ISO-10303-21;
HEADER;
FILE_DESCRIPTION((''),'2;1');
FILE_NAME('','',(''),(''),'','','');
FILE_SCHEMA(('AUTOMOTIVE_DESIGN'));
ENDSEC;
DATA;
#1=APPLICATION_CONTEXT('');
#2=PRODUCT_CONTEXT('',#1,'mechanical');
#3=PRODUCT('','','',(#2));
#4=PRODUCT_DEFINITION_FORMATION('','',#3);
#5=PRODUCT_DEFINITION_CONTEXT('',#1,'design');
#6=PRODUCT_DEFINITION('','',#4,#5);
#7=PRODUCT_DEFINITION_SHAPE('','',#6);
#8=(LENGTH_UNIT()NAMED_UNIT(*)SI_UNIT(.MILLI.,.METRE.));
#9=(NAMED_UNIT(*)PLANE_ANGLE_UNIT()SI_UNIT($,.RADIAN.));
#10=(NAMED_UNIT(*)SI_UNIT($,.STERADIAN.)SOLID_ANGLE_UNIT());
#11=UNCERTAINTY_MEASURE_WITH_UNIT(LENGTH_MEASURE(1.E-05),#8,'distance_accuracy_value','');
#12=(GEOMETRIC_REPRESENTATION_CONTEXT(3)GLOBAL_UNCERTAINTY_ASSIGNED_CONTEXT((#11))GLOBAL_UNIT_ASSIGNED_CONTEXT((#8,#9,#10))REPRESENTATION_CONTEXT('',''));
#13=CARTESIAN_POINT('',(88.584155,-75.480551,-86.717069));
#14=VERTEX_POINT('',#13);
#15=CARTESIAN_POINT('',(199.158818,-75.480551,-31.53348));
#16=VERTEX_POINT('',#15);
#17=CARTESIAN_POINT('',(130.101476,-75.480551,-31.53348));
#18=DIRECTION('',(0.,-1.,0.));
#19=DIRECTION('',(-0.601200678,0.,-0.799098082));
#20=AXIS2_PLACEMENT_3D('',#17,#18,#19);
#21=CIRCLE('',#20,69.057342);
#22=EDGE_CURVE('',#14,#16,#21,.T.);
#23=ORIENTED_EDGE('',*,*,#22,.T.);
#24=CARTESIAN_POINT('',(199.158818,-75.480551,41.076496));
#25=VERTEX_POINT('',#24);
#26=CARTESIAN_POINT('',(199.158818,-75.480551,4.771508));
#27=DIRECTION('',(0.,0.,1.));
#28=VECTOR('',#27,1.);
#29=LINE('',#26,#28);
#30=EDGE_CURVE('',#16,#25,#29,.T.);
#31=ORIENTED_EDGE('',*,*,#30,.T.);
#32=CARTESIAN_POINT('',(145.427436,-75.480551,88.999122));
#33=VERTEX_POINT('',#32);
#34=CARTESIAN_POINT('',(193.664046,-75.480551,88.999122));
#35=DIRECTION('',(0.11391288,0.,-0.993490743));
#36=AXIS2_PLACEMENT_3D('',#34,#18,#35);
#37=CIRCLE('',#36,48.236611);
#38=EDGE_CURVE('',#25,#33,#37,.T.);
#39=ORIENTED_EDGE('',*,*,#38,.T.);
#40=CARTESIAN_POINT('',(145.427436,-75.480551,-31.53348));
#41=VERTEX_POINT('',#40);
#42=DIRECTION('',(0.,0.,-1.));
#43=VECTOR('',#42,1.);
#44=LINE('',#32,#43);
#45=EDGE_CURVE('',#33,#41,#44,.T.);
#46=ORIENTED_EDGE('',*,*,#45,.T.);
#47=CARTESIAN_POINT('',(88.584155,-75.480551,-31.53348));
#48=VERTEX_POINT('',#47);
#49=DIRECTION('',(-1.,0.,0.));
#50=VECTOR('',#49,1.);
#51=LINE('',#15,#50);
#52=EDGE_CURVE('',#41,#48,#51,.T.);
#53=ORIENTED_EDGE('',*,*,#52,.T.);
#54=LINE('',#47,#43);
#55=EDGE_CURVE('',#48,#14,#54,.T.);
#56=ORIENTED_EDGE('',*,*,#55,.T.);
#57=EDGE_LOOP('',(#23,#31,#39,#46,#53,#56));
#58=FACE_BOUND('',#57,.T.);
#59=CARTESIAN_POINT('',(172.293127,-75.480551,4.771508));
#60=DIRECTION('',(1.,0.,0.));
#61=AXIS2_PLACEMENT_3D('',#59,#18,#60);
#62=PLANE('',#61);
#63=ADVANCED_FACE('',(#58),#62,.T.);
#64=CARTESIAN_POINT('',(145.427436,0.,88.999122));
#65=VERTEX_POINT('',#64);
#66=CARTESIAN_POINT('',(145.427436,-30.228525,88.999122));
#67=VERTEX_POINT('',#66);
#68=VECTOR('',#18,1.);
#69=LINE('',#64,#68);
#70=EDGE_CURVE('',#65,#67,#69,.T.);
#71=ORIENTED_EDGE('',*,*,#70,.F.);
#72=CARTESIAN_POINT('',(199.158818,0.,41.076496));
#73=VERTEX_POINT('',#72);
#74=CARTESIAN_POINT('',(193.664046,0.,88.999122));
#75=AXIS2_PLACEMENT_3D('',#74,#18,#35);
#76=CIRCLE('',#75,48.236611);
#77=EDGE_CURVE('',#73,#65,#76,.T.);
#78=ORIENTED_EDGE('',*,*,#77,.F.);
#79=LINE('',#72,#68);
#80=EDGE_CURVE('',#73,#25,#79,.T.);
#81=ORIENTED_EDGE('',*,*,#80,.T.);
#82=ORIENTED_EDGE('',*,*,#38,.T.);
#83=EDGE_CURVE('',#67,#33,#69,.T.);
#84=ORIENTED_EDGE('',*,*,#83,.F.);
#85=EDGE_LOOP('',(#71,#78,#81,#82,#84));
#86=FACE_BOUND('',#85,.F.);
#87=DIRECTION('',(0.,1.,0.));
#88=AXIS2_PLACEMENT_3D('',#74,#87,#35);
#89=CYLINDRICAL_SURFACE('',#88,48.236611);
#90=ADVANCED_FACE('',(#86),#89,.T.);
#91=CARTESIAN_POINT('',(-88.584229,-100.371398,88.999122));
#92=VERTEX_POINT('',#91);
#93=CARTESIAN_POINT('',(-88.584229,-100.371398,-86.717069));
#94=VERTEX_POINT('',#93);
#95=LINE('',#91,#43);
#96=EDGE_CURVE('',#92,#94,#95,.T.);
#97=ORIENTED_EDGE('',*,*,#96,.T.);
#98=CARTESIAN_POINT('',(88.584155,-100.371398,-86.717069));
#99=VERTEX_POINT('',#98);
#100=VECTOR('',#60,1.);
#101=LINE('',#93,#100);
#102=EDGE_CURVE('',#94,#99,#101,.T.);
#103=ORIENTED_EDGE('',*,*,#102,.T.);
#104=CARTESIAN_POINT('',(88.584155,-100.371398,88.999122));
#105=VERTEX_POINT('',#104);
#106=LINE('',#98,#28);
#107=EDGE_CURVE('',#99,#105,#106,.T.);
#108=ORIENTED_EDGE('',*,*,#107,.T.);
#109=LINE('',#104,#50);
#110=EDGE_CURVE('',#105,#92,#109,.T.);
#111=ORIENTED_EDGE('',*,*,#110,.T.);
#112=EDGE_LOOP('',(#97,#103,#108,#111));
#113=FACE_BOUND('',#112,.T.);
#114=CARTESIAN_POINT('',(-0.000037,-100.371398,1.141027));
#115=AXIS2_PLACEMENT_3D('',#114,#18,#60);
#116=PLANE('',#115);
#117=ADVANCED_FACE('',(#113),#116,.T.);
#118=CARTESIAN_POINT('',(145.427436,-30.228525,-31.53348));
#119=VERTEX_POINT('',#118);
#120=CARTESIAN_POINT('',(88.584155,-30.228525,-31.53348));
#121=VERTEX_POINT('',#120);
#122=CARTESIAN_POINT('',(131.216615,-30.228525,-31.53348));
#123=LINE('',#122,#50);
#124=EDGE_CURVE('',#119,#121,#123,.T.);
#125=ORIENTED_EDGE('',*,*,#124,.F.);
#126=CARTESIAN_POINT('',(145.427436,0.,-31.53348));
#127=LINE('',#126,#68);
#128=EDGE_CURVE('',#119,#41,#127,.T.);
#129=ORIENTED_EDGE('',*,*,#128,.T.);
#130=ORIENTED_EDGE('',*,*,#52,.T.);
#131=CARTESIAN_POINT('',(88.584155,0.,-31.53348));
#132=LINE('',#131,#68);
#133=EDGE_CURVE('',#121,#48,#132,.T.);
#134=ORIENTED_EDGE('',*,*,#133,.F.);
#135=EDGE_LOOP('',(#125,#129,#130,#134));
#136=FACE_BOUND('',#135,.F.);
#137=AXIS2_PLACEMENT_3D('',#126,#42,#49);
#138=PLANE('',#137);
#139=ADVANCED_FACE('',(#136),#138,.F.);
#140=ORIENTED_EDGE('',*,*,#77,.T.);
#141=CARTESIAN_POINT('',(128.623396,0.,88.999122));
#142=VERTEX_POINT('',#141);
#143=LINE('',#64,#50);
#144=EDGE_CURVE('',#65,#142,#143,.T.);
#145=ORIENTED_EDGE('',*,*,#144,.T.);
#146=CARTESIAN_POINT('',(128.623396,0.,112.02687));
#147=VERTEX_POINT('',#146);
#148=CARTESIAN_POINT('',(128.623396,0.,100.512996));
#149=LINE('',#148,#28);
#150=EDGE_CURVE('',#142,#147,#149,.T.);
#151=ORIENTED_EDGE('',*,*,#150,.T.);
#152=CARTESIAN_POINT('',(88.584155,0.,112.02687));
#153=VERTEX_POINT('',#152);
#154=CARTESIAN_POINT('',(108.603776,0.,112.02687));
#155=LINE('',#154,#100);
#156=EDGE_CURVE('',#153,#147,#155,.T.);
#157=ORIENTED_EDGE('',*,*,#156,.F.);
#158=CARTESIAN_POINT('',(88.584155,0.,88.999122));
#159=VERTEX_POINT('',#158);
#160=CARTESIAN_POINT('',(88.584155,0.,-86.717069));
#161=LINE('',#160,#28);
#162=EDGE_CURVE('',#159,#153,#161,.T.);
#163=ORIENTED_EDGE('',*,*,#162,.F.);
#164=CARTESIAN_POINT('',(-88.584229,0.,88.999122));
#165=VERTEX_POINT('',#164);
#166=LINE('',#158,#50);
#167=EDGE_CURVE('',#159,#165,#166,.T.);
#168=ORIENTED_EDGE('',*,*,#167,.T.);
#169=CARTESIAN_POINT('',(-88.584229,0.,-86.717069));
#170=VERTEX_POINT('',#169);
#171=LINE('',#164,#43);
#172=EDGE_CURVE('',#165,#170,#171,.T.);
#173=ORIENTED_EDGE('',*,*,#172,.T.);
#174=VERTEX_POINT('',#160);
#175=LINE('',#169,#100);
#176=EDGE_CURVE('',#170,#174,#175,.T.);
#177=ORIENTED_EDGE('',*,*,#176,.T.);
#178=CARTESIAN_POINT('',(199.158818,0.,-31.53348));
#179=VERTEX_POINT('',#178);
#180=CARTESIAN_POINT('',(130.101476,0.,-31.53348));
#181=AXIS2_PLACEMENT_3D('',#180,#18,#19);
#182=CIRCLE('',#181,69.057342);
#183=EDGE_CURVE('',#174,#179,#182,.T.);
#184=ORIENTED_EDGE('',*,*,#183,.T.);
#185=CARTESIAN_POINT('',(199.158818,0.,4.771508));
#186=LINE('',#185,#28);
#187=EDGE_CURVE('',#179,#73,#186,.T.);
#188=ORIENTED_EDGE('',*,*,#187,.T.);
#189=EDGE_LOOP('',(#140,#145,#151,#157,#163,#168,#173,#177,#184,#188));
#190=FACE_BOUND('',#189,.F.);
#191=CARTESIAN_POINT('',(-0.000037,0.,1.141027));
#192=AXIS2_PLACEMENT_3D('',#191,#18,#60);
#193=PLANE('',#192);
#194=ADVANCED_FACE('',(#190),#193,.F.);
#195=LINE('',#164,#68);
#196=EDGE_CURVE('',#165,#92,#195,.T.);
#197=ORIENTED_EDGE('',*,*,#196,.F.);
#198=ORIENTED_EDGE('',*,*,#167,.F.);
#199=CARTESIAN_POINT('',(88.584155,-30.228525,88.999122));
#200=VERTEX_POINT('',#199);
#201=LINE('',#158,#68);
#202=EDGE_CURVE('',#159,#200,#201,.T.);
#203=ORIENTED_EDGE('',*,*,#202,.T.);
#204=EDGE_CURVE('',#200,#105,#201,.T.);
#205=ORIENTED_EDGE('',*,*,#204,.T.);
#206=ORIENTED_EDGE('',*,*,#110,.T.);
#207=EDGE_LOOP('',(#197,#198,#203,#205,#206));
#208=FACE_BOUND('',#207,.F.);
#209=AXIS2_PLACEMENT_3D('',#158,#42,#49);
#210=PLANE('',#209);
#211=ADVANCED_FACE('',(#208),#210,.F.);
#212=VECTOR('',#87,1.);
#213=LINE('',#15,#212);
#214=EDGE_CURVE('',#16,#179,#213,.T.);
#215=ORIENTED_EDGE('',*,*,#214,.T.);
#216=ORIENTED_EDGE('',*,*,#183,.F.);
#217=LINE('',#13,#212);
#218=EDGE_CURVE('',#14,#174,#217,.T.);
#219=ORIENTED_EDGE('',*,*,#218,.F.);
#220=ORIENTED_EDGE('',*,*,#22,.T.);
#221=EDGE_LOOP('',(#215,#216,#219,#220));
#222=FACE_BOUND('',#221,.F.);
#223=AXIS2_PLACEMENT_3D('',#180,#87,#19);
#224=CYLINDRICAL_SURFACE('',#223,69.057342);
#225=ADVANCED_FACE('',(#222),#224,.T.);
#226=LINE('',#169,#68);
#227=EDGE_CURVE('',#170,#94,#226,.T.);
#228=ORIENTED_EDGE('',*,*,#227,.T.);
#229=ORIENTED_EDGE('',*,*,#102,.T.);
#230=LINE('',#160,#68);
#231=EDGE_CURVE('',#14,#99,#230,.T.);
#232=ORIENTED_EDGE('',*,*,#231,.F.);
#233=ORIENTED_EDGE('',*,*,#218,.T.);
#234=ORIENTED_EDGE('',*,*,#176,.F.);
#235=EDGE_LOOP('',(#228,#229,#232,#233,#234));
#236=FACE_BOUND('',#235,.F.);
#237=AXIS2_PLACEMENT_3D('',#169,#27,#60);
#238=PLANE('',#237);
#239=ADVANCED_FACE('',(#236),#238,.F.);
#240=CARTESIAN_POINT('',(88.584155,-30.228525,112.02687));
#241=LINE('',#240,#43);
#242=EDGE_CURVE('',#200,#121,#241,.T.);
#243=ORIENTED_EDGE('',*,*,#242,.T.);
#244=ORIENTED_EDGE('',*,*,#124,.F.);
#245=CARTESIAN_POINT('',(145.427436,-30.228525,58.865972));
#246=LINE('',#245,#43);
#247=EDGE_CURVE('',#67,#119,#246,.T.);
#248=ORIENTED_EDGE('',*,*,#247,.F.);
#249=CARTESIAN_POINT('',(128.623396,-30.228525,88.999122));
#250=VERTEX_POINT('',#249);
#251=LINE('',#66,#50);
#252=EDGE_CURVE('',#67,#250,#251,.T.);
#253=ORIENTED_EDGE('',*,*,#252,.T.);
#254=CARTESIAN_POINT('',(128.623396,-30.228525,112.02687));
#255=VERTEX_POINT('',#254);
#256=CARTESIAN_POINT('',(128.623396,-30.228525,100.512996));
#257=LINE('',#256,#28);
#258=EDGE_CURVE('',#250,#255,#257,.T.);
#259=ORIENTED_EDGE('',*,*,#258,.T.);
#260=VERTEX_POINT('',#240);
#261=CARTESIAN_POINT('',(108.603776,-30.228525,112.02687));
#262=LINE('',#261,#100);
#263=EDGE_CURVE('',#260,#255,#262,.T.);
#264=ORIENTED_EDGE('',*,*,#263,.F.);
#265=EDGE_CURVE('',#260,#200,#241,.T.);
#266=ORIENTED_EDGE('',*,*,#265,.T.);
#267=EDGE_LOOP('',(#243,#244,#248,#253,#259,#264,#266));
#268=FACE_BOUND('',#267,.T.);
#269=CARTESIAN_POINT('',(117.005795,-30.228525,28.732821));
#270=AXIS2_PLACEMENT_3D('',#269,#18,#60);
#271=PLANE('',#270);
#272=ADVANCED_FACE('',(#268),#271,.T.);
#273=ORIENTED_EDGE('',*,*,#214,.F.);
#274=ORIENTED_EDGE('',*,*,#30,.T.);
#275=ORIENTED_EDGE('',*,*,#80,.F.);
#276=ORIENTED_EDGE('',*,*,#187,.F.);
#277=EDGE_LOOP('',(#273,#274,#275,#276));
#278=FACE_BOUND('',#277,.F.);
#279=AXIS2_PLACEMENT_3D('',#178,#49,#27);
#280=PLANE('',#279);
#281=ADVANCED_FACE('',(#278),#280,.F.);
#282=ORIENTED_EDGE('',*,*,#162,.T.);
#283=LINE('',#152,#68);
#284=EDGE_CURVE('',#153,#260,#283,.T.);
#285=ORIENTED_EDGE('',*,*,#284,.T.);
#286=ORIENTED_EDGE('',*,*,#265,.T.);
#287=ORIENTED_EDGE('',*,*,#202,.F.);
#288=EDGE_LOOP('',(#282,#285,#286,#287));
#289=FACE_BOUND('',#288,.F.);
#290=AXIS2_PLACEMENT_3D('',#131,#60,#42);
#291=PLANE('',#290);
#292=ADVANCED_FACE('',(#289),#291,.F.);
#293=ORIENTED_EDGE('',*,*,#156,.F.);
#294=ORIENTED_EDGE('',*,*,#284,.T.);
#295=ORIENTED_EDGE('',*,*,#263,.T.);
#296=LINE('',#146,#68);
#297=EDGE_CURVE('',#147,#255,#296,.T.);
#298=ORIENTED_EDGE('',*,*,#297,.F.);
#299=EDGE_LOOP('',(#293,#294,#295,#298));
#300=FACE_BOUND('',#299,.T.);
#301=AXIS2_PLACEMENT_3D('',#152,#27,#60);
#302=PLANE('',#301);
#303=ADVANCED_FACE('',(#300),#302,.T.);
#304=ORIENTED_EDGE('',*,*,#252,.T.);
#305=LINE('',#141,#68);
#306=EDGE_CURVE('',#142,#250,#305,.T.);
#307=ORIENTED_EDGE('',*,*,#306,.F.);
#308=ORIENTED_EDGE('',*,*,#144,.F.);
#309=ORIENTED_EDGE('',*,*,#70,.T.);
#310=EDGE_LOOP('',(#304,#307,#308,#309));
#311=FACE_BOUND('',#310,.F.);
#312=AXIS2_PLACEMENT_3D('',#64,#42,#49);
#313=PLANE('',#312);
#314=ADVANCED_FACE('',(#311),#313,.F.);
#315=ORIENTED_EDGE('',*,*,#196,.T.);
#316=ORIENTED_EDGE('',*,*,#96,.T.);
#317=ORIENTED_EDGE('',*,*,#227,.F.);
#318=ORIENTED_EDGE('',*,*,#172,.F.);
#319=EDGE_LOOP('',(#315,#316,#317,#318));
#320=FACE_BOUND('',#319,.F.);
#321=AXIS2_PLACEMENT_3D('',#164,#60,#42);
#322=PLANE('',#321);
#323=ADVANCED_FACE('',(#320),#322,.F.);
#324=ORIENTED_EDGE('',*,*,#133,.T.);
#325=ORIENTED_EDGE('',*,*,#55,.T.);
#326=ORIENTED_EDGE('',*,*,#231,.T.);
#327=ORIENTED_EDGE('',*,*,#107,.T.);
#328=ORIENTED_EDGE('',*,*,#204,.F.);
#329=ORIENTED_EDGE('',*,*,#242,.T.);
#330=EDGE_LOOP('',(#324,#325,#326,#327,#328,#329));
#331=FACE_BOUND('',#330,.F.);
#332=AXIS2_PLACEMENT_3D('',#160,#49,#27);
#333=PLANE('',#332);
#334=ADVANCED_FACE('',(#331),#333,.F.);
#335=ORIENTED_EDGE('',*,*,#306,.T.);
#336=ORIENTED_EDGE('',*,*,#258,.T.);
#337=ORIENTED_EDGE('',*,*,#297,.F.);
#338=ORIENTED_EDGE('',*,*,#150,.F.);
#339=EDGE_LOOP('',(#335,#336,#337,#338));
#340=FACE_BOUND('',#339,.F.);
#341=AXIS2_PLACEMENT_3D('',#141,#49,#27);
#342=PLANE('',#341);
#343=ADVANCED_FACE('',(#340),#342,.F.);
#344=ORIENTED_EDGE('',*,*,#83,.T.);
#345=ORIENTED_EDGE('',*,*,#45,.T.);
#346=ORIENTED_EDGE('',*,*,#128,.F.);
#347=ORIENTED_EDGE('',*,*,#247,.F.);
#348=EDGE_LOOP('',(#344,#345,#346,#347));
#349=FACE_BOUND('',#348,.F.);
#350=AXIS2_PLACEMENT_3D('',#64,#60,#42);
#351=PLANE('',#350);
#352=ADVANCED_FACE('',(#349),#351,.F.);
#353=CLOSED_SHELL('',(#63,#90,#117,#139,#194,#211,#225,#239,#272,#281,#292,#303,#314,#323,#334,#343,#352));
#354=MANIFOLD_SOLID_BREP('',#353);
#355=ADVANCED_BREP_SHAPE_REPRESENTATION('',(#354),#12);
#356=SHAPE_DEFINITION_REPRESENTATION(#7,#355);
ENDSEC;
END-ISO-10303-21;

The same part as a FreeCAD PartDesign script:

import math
import FreeCAD as App
import Part
import Sketcher
from FreeCAD import Vector


def add_polygon(sketch, points):
    """Adds a closed chain of lines whose ends are joined by coincident constraints."""
    first, n = sketch.GeometryCount, len(points)
    for a, b in zip(points, points[1:] + points[:1]):
        sketch.addGeometry(Part.LineSegment(App.Vector(*a, 0), App.Vector(*b, 0)), False)
    for i in range(n):
        sketch.addConstraint(Sketcher.Constraint("Coincident", first + i, 2, first + (i + 1) % n, 1))

doc = App.newDocument("Part")
params = doc.addObject("Spreadsheet::Sheet", "Params")
for row, (alias, value) in enumerate([
    ("pad1_length", "75.480551 mm"),
    ("pad2_length", "30.228525 mm"),
    ("pad3_length", "100.371398 mm"),
], start=1):
    params.set(f"A{row}", alias)
    params.set(f"B{row}", "=" + value)
    params.setAlias(f"B{row}", alias)

body = doc.addObject("PartDesign::Body", "Body")

# Sketch on XZ plane
sketch1 = body.newObject("Sketcher::SketchObject", "Sketch")
sketch1.AttachmentSupport = (doc.getObject("XZ_Plane"), [""])
sketch1.MapMode = "FlatFace"
sketch1.addGeometry(Part.LineSegment(Vector(199, -32, 0), Vector(199, 41, 0)), False)
sketch1.addGeometry(Part.ArcOfCircle(Part.Circle(Vector(194, 89, 0), Vector(0, 0, 1), 48), math.radians(-83), math.radians(180)), False)
sketch1.addGeometry(Part.LineSegment(Vector(145, 89, 0), Vector(145, -32, 0)), False)
sketch1.addGeometry(Part.LineSegment(Vector(145, -32, 0), Vector(89, -32, 0)), False)
sketch1.addGeometry(Part.LineSegment(Vector(89, -32, 0), Vector(89, -87, 0)), False)
sketch1.addGeometry(Part.ArcOfCircle(Part.Circle(Vector(130, -32, 0), Vector(0, 0, 1), 69), math.radians(-127), math.radians(0)), False)
sketch1.addConstraint(Sketcher.Constraint("Coincident", 0, 2, 1, 1))
sketch1.addConstraint(Sketcher.Constraint("Tangent", 1, 2, 2, 1))
sketch1.addConstraint(Sketcher.Constraint("Coincident", 2, 2, 3, 1))
sketch1.addConstraint(Sketcher.Constraint("Coincident", 3, 2, 4, 1))
sketch1.addConstraint(Sketcher.Constraint("Coincident", 4, 2, 5, 1))
sketch1.addConstraint(Sketcher.Constraint("Tangent", 5, 2, 0, 1))
sketch1.addConstraint(Sketcher.Constraint("Vertical", 0))
sketch1.addConstraint(Sketcher.Constraint("Vertical", 2))
sketch1.addConstraint(Sketcher.Constraint("Horizontal", 3))
sketch1.addConstraint(Sketcher.Constraint("Vertical", 4))
sketch1.addConstraint(Sketcher.Constraint("Horizontal", 5, 3, 2, 2))
sketch1.addConstraint(Sketcher.Constraint("Radius", 1, 48.236611))
sketch1.addConstraint(Sketcher.Constraint("Radius", 5, 69.057342))
sketch1.addConstraint(Sketcher.Constraint("DistanceX", 3, 2, 3, 1, 56.843281))
sketch1.addConstraint(Sketcher.Constraint("DistanceY", 4, 2, 4, 1, 55.183589))
sketch1.addConstraint(Sketcher.Constraint("DistanceY", 0, 1, 0, 2, 72.609976))
sketch1.addConstraint(Sketcher.Constraint("DistanceY", 5, 3, -1, 1, 31.53348))
sketch1.addConstraint(Sketcher.Constraint("DistanceX", -1, 1, 1, 3, 193.664046))
pad1 = body.newObject("PartDesign::Pad", "Pad")
pad1.Profile = sketch1
pad1.setExpression("Length", "Params.pad1_length")

# Sketch on XZ plane
sketch2 = body.newObject("Sketcher::SketchObject", "Sketch001")
sketch2.AttachmentSupport = (doc.getObject("XZ_Plane"), [""])
sketch2.MapMode = "FlatFace"
sketch2.addGeometry(Part.ArcOfCircle(Part.Circle(Vector(130, -32, 0), Vector(0, 0, 1), 69), math.radians(-127), math.radians(0)), False)
sketch2.addGeometry(Part.LineSegment(Vector(199, -32, 0), Vector(199, 41, 0)), False)
sketch2.addGeometry(Part.ArcOfCircle(Part.Circle(Vector(194, 89, 0), Vector(0, 0, 1), 48), math.radians(-83), math.radians(180)), False)
sketch2.addGeometry(Part.LineSegment(Vector(145, 89, 0), Vector(129, 89, 0)), False)
sketch2.addGeometry(Part.LineSegment(Vector(129, 89, 0), Vector(129, 112, 0)), False)
sketch2.addGeometry(Part.LineSegment(Vector(129, 112, 0), Vector(89, 112, 0)), False)
sketch2.addGeometry(Part.LineSegment(Vector(89, 112, 0), Vector(89, -87, 0)), False)
sketch2.addConstraint(Sketcher.Constraint("Tangent", 0, 2, 1, 1))
sketch2.addConstraint(Sketcher.Constraint("Coincident", 1, 2, 2, 1))
sketch2.addConstraint(Sketcher.Constraint("Coincident", 2, 2, 3, 1))
sketch2.addConstraint(Sketcher.Constraint("Coincident", 3, 2, 4, 1))
sketch2.addConstraint(Sketcher.Constraint("Coincident", 4, 2, 5, 1))
sketch2.addConstraint(Sketcher.Constraint("Coincident", 5, 2, 6, 1))
sketch2.addConstraint(Sketcher.Constraint("Coincident", 6, 2, 0, 1))
sketch2.addConstraint(Sketcher.Constraint("Vertical", 1))
sketch2.addConstraint(Sketcher.Constraint("Horizontal", 3))
sketch2.addConstraint(Sketcher.Constraint("Vertical", 4))
sketch2.addConstraint(Sketcher.Constraint("Horizontal", 5))
sketch2.addConstraint(Sketcher.Constraint("Vertical", 6))
sketch2.addConstraint(Sketcher.Constraint("Radius", 0, 69.057342))
sketch2.addConstraint(Sketcher.Constraint("Radius", 2, 48.236611))
sketch2.addConstraint(Sketcher.Constraint("DistanceX", 3, 2, 3, 1, 16.804039))
sketch2.addConstraint(Sketcher.Constraint("DistanceX", 5, 2, 5, 1, 40.039241))
sketch2.addConstraint(Sketcher.Constraint("DistanceY", 6, 2, 6, 1, 198.743939))
sketch2.addConstraint(Sketcher.Constraint("DistanceY", 1, 1, 1, 2, 72.609976))
sketch2.addConstraint(Sketcher.Constraint("DistanceY", 4, 1, 4, 2, 23.027748))
sketch2.addConstraint(Sketcher.Constraint("DistanceY", 0, 3, -1, 1, 31.53348))
sketch2.addConstraint(Sketcher.Constraint("DistanceY", -1, 1, 4, 2, 112.02687))
sketch2.addConstraint(Sketcher.Constraint("DistanceX", -1, 1, 0, 3, 130.101476))
pad2 = body.newObject("PartDesign::Pad", "Pad001")
pad2.Profile = sketch2
pad2.setExpression("Length", "Params.pad2_length")

# Sketch on XZ plane
sketch3 = body.newObject("Sketcher::SketchObject", "Sketch002")
sketch3.AttachmentSupport = (doc.getObject("XZ_Plane"), [""])
sketch3.MapMode = "FlatFace"
add_polygon(sketch3, [(89, 89), (-89, 89), (-89, -87), (89, -87)])  # lines 0-3
sketch3.addConstraint(Sketcher.Constraint("Horizontal", 0))
sketch3.addConstraint(Sketcher.Constraint("Vertical", 1))
sketch3.addConstraint(Sketcher.Constraint("Horizontal", 2))
sketch3.addConstraint(Sketcher.Constraint("Vertical", 3))
sketch3.addConstraint(Sketcher.Constraint("DistanceY", 1, 2, 1, 1, 175.716192))
sketch3.addConstraint(Sketcher.Constraint("DistanceX", 0, 2, 0, 1, 177.168384))
sketch3.addConstraint(Sketcher.Constraint("DistanceX", 0, 2, -1, 1, 88.584229))
sketch3.addConstraint(Sketcher.Constraint("DistanceY", 1, 2, -1, 1, 86.717069))
pad3 = body.newObject("PartDesign::Pad", "Pad002")
pad3.Profile = sketch3
pad3.setExpression("Length", "Params.pad3_length")

doc.recompute()
